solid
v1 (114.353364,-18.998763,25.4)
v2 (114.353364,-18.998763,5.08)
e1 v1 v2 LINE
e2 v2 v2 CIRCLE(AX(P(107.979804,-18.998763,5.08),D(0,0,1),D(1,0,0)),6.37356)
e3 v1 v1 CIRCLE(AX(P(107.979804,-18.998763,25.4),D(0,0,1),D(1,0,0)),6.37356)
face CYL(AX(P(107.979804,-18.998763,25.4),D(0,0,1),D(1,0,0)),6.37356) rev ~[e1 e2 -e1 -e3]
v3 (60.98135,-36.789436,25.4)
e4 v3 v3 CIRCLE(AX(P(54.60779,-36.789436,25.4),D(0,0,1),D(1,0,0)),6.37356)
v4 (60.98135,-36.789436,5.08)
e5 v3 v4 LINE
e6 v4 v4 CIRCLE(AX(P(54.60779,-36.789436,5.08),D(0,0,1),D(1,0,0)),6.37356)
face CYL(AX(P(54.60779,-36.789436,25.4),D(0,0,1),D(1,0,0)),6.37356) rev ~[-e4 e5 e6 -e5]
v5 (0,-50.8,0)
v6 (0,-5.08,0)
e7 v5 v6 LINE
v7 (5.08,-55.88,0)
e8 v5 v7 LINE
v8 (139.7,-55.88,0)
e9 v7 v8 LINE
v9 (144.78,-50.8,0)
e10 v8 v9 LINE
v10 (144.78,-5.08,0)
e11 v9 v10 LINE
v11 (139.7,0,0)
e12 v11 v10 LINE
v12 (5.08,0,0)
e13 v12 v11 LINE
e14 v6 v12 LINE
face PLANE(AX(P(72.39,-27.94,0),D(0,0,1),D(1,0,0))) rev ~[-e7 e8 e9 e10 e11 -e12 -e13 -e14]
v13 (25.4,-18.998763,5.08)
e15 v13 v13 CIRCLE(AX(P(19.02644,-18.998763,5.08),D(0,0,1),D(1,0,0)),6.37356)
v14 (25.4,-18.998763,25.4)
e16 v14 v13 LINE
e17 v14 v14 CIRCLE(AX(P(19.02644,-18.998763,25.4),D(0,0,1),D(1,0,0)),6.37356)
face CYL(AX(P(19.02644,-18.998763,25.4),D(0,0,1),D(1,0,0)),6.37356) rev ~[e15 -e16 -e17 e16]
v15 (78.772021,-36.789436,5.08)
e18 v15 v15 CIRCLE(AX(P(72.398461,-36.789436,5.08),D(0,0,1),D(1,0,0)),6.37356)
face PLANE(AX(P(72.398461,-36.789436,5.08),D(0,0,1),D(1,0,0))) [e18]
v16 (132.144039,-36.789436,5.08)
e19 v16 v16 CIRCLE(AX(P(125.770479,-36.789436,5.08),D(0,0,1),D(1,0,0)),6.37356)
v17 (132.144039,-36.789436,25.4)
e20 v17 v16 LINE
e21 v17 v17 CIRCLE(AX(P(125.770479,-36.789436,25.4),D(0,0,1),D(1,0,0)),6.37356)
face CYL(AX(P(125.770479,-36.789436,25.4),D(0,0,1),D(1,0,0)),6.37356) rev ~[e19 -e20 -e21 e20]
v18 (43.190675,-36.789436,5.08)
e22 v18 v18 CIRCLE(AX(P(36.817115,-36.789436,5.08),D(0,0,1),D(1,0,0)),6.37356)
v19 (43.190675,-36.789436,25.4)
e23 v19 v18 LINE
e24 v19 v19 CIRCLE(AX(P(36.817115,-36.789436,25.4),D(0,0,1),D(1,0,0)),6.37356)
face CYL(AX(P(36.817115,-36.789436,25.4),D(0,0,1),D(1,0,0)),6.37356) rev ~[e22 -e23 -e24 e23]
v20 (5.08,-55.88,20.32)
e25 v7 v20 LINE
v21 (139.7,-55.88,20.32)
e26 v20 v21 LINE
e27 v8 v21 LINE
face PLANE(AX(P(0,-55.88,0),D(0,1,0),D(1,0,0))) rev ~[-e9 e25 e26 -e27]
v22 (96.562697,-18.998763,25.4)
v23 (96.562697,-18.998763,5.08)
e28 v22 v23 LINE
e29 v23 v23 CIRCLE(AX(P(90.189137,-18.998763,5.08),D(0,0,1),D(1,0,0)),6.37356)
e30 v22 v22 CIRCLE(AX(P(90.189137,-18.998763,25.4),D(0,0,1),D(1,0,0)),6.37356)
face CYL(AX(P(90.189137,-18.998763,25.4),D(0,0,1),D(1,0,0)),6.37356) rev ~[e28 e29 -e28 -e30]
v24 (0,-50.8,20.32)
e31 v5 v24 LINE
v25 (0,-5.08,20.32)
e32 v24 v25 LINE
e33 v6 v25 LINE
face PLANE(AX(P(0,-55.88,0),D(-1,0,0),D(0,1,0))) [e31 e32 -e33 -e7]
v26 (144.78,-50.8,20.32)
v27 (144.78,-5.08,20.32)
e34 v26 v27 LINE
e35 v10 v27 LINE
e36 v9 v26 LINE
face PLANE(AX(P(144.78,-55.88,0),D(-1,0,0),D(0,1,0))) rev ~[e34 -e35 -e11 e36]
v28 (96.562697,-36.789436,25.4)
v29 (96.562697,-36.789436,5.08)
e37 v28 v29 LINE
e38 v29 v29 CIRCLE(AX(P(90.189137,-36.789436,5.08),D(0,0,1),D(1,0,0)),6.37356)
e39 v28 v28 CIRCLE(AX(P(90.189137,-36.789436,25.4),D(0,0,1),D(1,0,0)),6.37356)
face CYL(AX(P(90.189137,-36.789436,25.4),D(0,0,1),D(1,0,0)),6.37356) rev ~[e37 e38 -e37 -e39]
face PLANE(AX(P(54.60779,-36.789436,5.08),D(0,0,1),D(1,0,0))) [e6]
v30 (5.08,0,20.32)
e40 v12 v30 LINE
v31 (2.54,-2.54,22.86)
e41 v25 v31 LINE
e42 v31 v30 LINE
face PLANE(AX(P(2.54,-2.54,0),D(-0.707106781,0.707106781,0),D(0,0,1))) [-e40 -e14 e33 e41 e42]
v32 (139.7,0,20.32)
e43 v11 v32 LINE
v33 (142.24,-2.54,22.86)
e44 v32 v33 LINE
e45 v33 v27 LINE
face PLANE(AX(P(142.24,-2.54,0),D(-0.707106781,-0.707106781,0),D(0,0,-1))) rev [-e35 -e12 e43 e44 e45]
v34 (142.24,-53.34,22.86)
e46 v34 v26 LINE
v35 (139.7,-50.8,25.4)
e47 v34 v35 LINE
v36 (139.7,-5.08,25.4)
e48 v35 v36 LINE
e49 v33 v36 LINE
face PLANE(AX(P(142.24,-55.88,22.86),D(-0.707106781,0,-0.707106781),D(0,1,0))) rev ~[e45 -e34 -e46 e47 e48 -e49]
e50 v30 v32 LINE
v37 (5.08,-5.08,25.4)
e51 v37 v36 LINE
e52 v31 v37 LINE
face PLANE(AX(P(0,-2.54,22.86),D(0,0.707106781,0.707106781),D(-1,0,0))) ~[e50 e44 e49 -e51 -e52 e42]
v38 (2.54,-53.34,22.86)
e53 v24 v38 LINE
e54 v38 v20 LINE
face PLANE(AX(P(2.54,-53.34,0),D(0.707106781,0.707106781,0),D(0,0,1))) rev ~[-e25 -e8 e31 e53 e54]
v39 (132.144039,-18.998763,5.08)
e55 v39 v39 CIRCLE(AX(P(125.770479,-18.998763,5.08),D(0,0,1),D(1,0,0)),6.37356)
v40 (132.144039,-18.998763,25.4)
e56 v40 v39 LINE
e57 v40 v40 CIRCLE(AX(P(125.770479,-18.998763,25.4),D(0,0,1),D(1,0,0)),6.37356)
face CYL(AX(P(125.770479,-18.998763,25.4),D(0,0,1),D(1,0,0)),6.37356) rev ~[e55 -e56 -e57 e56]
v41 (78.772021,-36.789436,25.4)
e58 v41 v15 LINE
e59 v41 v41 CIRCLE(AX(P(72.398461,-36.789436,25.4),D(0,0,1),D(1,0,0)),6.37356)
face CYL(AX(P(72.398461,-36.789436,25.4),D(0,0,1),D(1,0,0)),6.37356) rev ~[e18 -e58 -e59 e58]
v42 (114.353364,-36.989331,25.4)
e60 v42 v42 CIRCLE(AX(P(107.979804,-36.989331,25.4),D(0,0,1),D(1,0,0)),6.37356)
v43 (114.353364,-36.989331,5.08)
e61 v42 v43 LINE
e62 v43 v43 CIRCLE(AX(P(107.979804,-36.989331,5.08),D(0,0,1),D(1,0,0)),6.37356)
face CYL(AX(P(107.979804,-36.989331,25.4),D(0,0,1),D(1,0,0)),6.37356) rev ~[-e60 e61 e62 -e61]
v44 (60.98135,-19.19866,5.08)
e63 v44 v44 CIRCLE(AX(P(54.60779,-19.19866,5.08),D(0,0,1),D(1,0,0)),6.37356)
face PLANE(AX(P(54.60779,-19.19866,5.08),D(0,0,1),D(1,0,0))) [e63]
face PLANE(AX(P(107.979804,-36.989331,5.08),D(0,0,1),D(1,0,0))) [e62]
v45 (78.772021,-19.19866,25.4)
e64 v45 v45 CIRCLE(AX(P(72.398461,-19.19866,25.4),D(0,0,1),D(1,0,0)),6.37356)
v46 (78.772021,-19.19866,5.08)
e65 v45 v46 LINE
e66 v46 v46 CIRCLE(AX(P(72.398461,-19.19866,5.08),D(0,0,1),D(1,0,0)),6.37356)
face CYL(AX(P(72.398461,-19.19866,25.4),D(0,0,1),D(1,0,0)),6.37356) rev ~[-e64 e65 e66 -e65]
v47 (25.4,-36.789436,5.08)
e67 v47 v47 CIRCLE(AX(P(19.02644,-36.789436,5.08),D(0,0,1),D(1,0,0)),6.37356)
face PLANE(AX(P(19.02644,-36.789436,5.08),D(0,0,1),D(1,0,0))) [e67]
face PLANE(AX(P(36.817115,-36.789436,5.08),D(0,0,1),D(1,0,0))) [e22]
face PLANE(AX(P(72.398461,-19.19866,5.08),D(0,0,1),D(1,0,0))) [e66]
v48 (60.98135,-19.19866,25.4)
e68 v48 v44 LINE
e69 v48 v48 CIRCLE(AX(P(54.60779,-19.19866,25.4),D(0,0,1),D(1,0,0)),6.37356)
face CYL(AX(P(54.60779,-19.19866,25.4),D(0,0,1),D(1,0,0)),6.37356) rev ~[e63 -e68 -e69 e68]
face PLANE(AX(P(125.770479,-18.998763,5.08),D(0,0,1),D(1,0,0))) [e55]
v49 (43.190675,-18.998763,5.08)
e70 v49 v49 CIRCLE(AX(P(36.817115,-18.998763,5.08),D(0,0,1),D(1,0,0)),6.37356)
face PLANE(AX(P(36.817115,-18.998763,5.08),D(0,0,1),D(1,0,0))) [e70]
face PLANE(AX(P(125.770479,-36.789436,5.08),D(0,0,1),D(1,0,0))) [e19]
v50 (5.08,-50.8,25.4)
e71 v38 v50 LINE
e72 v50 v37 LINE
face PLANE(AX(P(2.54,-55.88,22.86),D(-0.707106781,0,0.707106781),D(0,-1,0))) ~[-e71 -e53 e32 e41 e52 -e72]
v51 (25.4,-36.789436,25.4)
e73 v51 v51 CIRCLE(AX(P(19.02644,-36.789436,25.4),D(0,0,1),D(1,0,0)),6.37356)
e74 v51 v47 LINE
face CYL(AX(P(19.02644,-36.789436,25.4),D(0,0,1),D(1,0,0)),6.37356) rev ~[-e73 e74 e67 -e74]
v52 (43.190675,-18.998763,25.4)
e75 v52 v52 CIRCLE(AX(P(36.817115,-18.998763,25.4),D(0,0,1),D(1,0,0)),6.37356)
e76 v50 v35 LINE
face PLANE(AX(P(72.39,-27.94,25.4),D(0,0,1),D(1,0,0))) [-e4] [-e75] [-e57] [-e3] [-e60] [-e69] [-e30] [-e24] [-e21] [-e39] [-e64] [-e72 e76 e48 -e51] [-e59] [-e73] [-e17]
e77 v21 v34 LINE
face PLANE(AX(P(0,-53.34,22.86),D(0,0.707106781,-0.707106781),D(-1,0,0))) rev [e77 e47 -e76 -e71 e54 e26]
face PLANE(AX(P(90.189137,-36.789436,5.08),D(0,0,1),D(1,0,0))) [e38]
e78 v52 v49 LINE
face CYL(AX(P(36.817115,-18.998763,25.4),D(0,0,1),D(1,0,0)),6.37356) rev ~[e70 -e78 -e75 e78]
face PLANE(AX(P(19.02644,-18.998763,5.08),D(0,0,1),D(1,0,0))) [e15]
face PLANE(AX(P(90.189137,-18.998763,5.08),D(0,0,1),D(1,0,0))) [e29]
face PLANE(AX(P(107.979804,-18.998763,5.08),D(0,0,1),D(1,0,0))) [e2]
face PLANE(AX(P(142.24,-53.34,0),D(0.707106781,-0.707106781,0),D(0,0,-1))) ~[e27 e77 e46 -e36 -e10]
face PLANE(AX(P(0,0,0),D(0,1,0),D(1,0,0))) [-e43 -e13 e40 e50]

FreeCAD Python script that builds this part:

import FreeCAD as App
import Part
import Sketcher
from FreeCAD import Vector
Q = App.Units.Quantity


def edges_at(feature, points):
    """Names of the edges that pass closest to the given points."""
    edges = feature.Shape.Edges
    near = lambda p: min(range(len(edges)), key=lambda i: edges[i].distToShape(Part.Vertex(*p))[0])
    return sorted({f"Edge{near(p) + 1}" for p in points})

doc = App.newDocument("Part")
body = doc.addObject("PartDesign::Body", "Body")

# Sketch on XY plane
sketch1 = body.newObject("Sketcher::SketchObject", "Sketch")
sketch1.AttachmentSupport = (doc.getObject("XY_Plane"), [""])
sketch1.MapMode = "FlatFace"
sketch1.addGeometry([
    Part.LineSegment(Vector(0, 0, 0), Vector(0, -56, 0)),
    Part.LineSegment(Vector(0, -56, 0), Vector(145, -56, 0)),
    Part.LineSegment(Vector(145, -56, 0), Vector(145, 0, 0)),
    Part.LineSegment(Vector(145, 0, 0), Vector(0, 0, 0)),
], False)
sketch1.addConstraint([
    Sketcher.Constraint("Coincident", 0, 2, 1, 1),
    Sketcher.Constraint("Coincident", 1, 2, 2, 1),
    Sketcher.Constraint("Coincident", 2, 2, 3, 1),
    Sketcher.Constraint("Coincident", 3, 2, 0, 1),
    Sketcher.Constraint("Vertical", 0),
    Sketcher.Constraint("Horizontal", 1),
    Sketcher.Constraint("Vertical", 2),
    Sketcher.Constraint("Horizontal", 3),
    Sketcher.Constraint("Coincident", 3, 2, -1, 1),
    Sketcher.Constraint("DistanceX", 1, 1, 1, 2, Q("5.7 in")),
    Sketcher.Constraint("DistanceY", 0, 2, 0, 1, Q("2.2 in")),
])
pad1 = body.newObject("PartDesign::Pad", "Pad")
pad1.Profile = sketch1
pad1.Length = Q("1 in")

# Sketch on XY plane
sketch2 = body.newObject("Sketcher::SketchObject", "Sketch001")
sketch2.AttachmentSupport = (doc.getObject("XY_Plane"), [""])
sketch2.MapMode = "FlatFace"
sketch2.AttachmentOffset = App.Placement(Vector(0, 0, 1 * 25.4), App.Rotation())
sketch2.addGeometry([
    Part.Circle(Vector(126, -19, 0), Vector(0, 0, 1), 6),  # 0
    Part.Circle(Vector(126, -37, 0), Vector(0, 0, 1), 6),  # 1
    Part.Circle(Vector(108, -37, 0), Vector(0, 0, 1), 6),  # 2
    Part.Circle(Vector(108, -19, 0), Vector(0, 0, 1), 6),  # 3
    Part.Circle(Vector(90, -19, 0), Vector(0, 0, 1), 6),  # 4
    Part.Circle(Vector(90, -37, 0), Vector(0, 0, 1), 6),  # 5
    Part.Circle(Vector(72, -37, 0), Vector(0, 0, 1), 6),  # 6
    Part.Circle(Vector(72, -19, 0), Vector(0, 0, 1), 6),  # 7
    Part.Circle(Vector(55, -19, 0), Vector(0, 0, 1), 6),  # 8
    Part.Circle(Vector(55, -37, 0), Vector(0, 0, 1), 6),  # 9
    Part.Circle(Vector(37, -37, 0), Vector(0, 0, 1), 6),  # 10
    Part.Circle(Vector(37, -19, 0), Vector(0, 0, 1), 6),  # 11
    Part.Circle(Vector(19, -19, 0), Vector(0, 0, 1), 6),  # 12
    Part.Circle(Vector(19, -37, 0), Vector(0, 0, 1), 6),  # 13
], False)
sketch2.addConstraint([
    Sketcher.Constraint("Equal", 0, 1),
    Sketcher.Constraint("Equal", 1, 2),
    Sketcher.Constraint("Equal", 2, 3),
    Sketcher.Constraint("Equal", 3, 4),
    Sketcher.Constraint("Equal", 4, 5),
    Sketcher.Constraint("Equal", 5, 6),
    Sketcher.Constraint("Equal", 6, 7),
    Sketcher.Constraint("Equal", 7, 8),
    Sketcher.Constraint("Equal", 8, 9),
    Sketcher.Constraint("Equal", 9, 10),
    Sketcher.Constraint("Equal", 10, 11),
    Sketcher.Constraint("Equal", 11, 12),
    Sketcher.Constraint("Equal", 12, 13),
    Sketcher.Constraint("Horizontal", 0, 3, 3, 3),
    Sketcher.Constraint("Horizontal", 3, 3, 4, 3),
    Sketcher.Constraint("Horizontal", 1, 3, 5, 3),
    Sketcher.Constraint("Horizontal", 5, 3, 6, 3),
    Sketcher.Constraint("Horizontal", 7, 3, 8, 3),
    Sketcher.Constraint("Horizontal", 6, 3, 9, 3),
    Sketcher.Constraint("Horizontal", 9, 3, 10, 3),
    Sketcher.Constraint("Horizontal", 4, 3, 11, 3),
    Sketcher.Constraint("Horizontal", 11, 3, 12, 3),
    Sketcher.Constraint("Horizontal", 10, 3, 13, 3),
    Sketcher.Constraint("Vertical", 0, 3, 1, 3),
    Sketcher.Constraint("Vertical", 2, 3, 3, 3),
    Sketcher.Constraint("Vertical", 4, 3, 5, 3),
    Sketcher.Constraint("Vertical", 6, 3, 7, 3),
    Sketcher.Constraint("Vertical", 8, 3, 9, 3),
    Sketcher.Constraint("Vertical", 10, 3, 11, 3),
    Sketcher.Constraint("Vertical", 12, 3, 13, 3),
    Sketcher.Constraint("Diameter", 0, Q("12.74712 mm")),
    Sketcher.Constraint("DistanceX", -1, 1, 0, 3, Q("125.770479 mm")),
    Sketcher.Constraint("DistanceY", 2, 3, -1, 1, Q("36.989331 mm")),
    Sketcher.Constraint("DistanceX", -1, 1, 6, 3, Q("72.398461 mm")),
    Sketcher.Constraint("DistanceY", 7, 3, -1, 1, Q("19.19866 mm")),
    Sketcher.Constraint("DistanceX", -1, 1, 8, 3, Q("54.60779 mm")),
    Sketcher.Constraint("DistanceX", -1, 1, 12, 3, Q("19.02644 mm")),
    Sketcher.Constraint("DistanceX", 4, 3, 0, 3, Q("35.581342 mm")),
    Sketcher.Constraint("DistanceY", 0, 3, -1, 1, Q("18.998763 mm")),
    Sketcher.Constraint("DistanceY", 1, 3, -1, 1, Q("36.789436 mm")),
    Sketcher.Constraint("DistanceX", -1, 1, 2, 3, Q("107.979804 mm")),
    Sketcher.Constraint("DistanceX", -1, 1, 10, 3, Q("36.817115 mm")),
])
pocket1 = body.newObject("PartDesign::Pocket", "Pocket")
pocket1.Profile = sketch2
pocket1.Length = Q("0.8 in")
doc.recompute()

chamfer = body.newObject("PartDesign::Chamfer", "Chamfer")
chamfer.Base = (pocket1, edges_at(pocket1, [
    (72.39, -55.88, 25.4),
    (72.39, 0, 25.4),
    (144.78, -27.94, 25.4),
    (0, -27.94, 25.4),
]))
chamfer.Size = Q("0.2 in")
doc.recompute()

chamfer2 = body.newObject("PartDesign::Chamfer", "Chamfer001")
chamfer2.Base = (chamfer, edges_at(chamfer, [
    (144.78, -55.88, 10.16),
    (144.78, 0, 10.16),
    (0, -55.88, 10.16),
    (0, 0, 10.16),
]))
chamfer2.Size = Q("0.2 in")

doc.recompute()
